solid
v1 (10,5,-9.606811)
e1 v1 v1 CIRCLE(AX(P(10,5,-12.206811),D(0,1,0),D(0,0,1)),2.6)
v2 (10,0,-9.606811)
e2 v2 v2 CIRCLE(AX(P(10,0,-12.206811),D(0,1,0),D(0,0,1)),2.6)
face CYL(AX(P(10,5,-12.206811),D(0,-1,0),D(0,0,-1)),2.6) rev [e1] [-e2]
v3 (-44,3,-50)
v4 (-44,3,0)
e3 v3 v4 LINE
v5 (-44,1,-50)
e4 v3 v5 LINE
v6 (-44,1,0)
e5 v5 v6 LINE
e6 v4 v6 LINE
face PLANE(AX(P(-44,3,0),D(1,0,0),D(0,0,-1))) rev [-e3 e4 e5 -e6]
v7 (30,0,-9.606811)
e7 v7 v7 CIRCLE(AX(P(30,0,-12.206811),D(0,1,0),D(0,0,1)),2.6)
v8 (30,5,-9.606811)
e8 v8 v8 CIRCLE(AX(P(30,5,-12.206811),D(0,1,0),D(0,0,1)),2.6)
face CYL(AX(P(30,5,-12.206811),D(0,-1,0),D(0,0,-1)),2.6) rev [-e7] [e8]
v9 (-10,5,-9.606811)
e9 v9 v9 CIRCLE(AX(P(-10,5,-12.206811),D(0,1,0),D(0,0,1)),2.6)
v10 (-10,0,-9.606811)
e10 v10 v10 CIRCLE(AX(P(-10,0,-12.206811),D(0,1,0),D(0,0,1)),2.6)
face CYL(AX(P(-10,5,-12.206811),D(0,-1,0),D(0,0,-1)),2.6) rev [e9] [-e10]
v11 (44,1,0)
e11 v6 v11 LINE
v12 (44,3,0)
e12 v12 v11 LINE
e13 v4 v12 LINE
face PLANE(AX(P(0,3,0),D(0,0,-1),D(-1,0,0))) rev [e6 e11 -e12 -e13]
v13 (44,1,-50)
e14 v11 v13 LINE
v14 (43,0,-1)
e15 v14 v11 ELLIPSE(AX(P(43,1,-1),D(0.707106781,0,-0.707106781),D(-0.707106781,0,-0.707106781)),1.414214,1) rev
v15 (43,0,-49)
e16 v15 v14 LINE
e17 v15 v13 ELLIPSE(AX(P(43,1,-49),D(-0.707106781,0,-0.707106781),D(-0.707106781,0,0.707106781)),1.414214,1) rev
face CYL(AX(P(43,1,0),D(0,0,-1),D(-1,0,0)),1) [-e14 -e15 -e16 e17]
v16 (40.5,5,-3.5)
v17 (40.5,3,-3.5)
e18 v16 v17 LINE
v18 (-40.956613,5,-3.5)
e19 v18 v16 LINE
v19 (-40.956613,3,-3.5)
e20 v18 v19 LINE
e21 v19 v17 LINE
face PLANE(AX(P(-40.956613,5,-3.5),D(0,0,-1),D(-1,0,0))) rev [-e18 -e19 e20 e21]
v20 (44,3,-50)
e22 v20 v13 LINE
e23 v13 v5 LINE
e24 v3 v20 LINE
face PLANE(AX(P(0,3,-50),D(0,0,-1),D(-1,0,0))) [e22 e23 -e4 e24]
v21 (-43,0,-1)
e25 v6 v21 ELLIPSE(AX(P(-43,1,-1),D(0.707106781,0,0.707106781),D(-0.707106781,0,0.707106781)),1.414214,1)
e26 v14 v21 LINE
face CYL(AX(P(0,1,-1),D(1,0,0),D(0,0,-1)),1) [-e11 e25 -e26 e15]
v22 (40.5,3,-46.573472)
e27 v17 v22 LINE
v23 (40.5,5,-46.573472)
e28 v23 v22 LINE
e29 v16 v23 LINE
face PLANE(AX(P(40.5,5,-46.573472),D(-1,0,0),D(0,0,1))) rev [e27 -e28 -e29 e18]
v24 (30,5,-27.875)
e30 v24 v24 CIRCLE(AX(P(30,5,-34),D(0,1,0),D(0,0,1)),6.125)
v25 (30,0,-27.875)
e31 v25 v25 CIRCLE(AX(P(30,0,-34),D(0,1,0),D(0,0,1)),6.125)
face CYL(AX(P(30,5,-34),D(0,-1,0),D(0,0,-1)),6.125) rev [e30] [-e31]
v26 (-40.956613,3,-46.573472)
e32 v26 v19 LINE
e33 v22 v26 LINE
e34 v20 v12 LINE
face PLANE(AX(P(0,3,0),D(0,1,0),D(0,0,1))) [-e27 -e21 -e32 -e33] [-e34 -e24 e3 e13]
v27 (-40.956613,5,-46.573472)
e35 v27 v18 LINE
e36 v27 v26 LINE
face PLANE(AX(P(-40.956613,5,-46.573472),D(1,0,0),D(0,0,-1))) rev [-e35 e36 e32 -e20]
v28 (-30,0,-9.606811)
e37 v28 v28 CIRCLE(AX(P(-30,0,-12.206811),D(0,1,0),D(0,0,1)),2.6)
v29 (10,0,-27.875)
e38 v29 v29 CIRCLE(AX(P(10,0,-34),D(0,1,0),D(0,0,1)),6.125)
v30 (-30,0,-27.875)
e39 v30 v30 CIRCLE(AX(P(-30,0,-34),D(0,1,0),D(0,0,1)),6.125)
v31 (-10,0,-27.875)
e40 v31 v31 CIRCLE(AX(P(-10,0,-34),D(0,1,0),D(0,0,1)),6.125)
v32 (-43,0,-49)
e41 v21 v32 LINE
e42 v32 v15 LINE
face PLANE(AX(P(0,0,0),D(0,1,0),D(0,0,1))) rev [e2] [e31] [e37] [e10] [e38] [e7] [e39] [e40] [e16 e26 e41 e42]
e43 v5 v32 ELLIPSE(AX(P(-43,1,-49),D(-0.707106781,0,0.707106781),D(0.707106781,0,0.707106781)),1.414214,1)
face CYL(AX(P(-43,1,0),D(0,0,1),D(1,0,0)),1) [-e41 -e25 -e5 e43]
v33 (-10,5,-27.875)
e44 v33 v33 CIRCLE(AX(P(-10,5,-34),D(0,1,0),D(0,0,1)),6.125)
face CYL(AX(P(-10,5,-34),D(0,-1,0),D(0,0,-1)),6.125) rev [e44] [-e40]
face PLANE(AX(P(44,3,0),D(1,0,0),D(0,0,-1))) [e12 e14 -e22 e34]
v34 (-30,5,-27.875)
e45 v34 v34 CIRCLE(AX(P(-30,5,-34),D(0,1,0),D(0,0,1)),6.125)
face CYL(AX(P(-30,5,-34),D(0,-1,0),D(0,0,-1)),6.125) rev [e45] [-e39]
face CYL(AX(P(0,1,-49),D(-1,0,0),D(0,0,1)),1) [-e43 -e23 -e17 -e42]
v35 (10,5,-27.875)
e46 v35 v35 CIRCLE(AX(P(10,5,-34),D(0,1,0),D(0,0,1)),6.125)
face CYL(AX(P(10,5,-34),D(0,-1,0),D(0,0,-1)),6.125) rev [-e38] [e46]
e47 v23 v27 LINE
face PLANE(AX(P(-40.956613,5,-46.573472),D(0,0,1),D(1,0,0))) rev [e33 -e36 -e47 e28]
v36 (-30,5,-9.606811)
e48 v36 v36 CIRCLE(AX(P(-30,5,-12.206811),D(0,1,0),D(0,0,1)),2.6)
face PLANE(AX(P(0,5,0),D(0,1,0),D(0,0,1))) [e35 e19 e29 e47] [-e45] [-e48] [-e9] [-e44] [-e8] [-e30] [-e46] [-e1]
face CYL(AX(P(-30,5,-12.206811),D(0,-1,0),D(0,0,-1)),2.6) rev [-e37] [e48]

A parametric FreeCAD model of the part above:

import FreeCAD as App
import Part
import Sketcher
from FreeCAD import Vector
Q = App.Units.Quantity


def edges_at(feature, points):
    """Names of the edges that pass closest to the given points."""
    edges = feature.Shape.Edges
    near = lambda p: min(range(len(edges)), key=lambda i: edges[i].distToShape(Part.Vertex(*p))[0])
    return sorted({f"Edge{near(p) + 1}" for p in points})

doc = App.newDocument("Part")
body = doc.addObject("PartDesign::Body", "Body")

# Sketch on XZ plane
sketch1 = doc.addObject("Sketcher::SketchObject", "Sketch")
body.addObject(sketch1)
sketch1.AttachmentSupport = (doc.XZ_Plane, [""])
sketch1.MapMode = "FlatFace"
sketch1.addGeometry(Part.LineSegment(Vector(-44, -50, 0), Vector(-44, 0, 0)), False)
sketch1.addGeometry(Part.LineSegment(Vector(-44, 0, 0), Vector(44, 0, 0)), False)
sketch1.addGeometry(Part.LineSegment(Vector(44, 0, 0), Vector(44, -50, 0)), False)
sketch1.addGeometry(Part.LineSegment(Vector(44, -50, 0), Vector(-44, -50, 0)), False)
sketch1.addConstraint(Sketcher.Constraint("Coincident", 0, 2, 1, 1))
sketch1.addConstraint(Sketcher.Constraint("Coincident", 1, 2, 2, 1))
sketch1.addConstraint(Sketcher.Constraint("Coincident", 2, 2, 3, 1))
sketch1.addConstraint(Sketcher.Constraint("Coincident", 3, 2, 0, 1))
sketch1.addConstraint(Sketcher.Constraint("Vertical", 0))
sketch1.addConstraint(Sketcher.Constraint("Horizontal", 1))
sketch1.addConstraint(Sketcher.Constraint("Vertical", 2))
sketch1.addConstraint(Sketcher.Constraint("Horizontal", 3))
sketch1.addConstraint(Sketcher.Constraint("Symmetric", 0, 2, 1, 2, -1, 1))
sketch1.addConstraint(Sketcher.Constraint("DistanceX", 1, 1, 1, 2, Q("88 mm")))
sketch1.addConstraint(Sketcher.Constraint("DistanceY", 0, 1, 0, 2, Q("50 mm")))
pad1 = doc.addObject("PartDesign::Pad", "Pad")
body.addObject(pad1)
pad1.Profile = sketch1
pad1.Length = 3
pad1.Reversed = True

# Sketch on XZ plane
sketch2 = doc.addObject("Sketcher::SketchObject", "Sketch001")
body.addObject(sketch2)
sketch2.AttachmentSupport = (doc.XZ_Plane, [""])
sketch2.MapMode = "FlatFace"
sketch2.AttachmentOffset = App.Placement(Vector(0, 0, -3), App.Rotation())
sketch2.addGeometry(Part.LineSegment(Vector(-41, -47, 0), Vector(-41, -4, 0)), False)
sketch2.addGeometry(Part.LineSegment(Vector(-41, -4, 0), Vector(40, -4, 0)), False)
sketch2.addGeometry(Part.LineSegment(Vector(40, -4, 0), Vector(40, -47, 0)), False)
sketch2.addGeometry(Part.LineSegment(Vector(40, -47, 0), Vector(-41, -47, 0)), False)
sketch2.addConstraint(Sketcher.Constraint("Coincident", 0, 2, 1, 1))
sketch2.addConstraint(Sketcher.Constraint("Coincident", 1, 2, 2, 1))
sketch2.addConstraint(Sketcher.Constraint("Coincident", 2, 2, 3, 1))
sketch2.addConstraint(Sketcher.Constraint("Coincident", 3, 2, 0, 1))
sketch2.addConstraint(Sketcher.Constraint("Vertical", 0))
sketch2.addConstraint(Sketcher.Constraint("Horizontal", 1))
sketch2.addConstraint(Sketcher.Constraint("Vertical", 2))
sketch2.addConstraint(Sketcher.Constraint("Horizontal", 3))
sketch2.addConstraint(Sketcher.Constraint("DistanceY", 0, 2, -1, 1, Q("3.5 mm")))
sketch2.addConstraint(Sketcher.Constraint("DistanceX", -1, 1, 1, 2, Q("40.5 mm")))
sketch2.addConstraint(Sketcher.Constraint("DistanceY", 0, 1, 0, 2, Q("43.073472 mm")))
sketch2.addConstraint(Sketcher.Constraint("DistanceX", 1, 1, 1, 2, Q("81.456613 mm")))
pad2 = doc.addObject("PartDesign::Pad", "Pad001")
body.addObject(pad2)
pad2.Profile = sketch2
pad2.Length = 2
pad2.Reversed = True

# Sketch on XZ plane
sketch3 = doc.addObject("Sketcher::SketchObject", "Sketch002")
body.addObject(sketch3)
sketch3.AttachmentSupport = (doc.XZ_Plane, [""])
sketch3.MapMode = "FlatFace"
sketch3.AttachmentOffset = App.Placement(Vector(0, 0, -3), App.Rotation())
sketch3.addGeometry(Part.Circle(Vector(30, -34, 0), Vector(0, 0, 1), 6.1), False)
sketch3.addGeometry(Part.Circle(Vector(10, -34, 0), Vector(0, 0, 1), 6.1), False)
sketch3.addGeometry(Part.Circle(Vector(-10, -34, 0), Vector(0, 0, 1), 6.1), False)
sketch3.addGeometry(Part.Circle(Vector(-30, -34, 0), Vector(0, 0, 1), 6.1), False)
sketch3.addGeometry(Part.Circle(Vector(30, -12.2, 0), Vector(0, 0, 1), 2.6), False)
sketch3.addGeometry(Part.Circle(Vector(10, -12.2, 0), Vector(0, 0, 1), 2.6), False)
sketch3.addGeometry(Part.Circle(Vector(-10, -12.2, 0), Vector(0, 0, 1), 2.6), False)
sketch3.addGeometry(Part.Circle(Vector(-30, -12.2, 0), Vector(0, 0, 1), 2.6), False)
sketch3.addConstraint(Sketcher.Constraint("Equal", 0, 1))
sketch3.addConstraint(Sketcher.Constraint("Equal", 1, 2))
sketch3.addConstraint(Sketcher.Constraint("Equal", 2, 3))
sketch3.addConstraint(Sketcher.Constraint("Equal", 4, 5))
sketch3.addConstraint(Sketcher.Constraint("Equal", 5, 6))
sketch3.addConstraint(Sketcher.Constraint("Equal", 6, 7))
sketch3.addConstraint(Sketcher.Constraint("Symmetric", 1, 3, 2, 3, -2))
sketch3.addConstraint(Sketcher.Constraint("Symmetric", 0, 3, 3, 3, -2))
sketch3.addConstraint(Sketcher.Constraint("Symmetric", 5, 3, 6, 3, -2))
sketch3.addConstraint(Sketcher.Constraint("Symmetric", 4, 3, 7, 3, -2))
sketch3.addConstraint(Sketcher.Constraint("Horizontal", 0, 3, 1, 3))
sketch3.addConstraint(Sketcher.Constraint("Horizontal", 4, 3, 5, 3))
sketch3.addConstraint(Sketcher.Constraint("Vertical", 0, 3, 4, 3))
sketch3.addConstraint(Sketcher.Constraint("Vertical", 1, 3, 5, 3))
sketch3.addConstraint(Sketcher.Constraint("Diameter", 4, Q("5.2 mm")))
sketch3.addConstraint(Sketcher.Constraint("Diameter", 0, Q("12.25 mm")))
sketch3.addConstraint(Sketcher.Constraint("DistanceX", -1, 1, 0, 3, Q("30 mm")))
sketch3.addConstraint(Sketcher.Constraint("DistanceY", 0, 3, -1, 1, Q("34 mm")))
sketch3.addConstraint(Sketcher.Constraint("DistanceX", -1, 1, 1, 3, Q("10 mm")))
sketch3.addConstraint(Sketcher.Constraint("DistanceY", 4, 3, -1, 1, Q("12.206811 mm")))
pocket1 = doc.addObject("PartDesign::Pocket", "Pocket")
body.addObject(pocket1)
pocket1.Profile = sketch3
pocket1.Type = "ThroughAll"
pocket1.Midplane = True
doc.recompute()

fillet = doc.addObject("PartDesign::Fillet", "Fillet")
body.addObject(fillet)
fillet.Base = (pocket1, edges_at(pocket1, [
    (0, 0, 0),
    (-44, 0, -25),
    (0, 0, -50),
    (44, 0, -25),
]))
fillet.Radius = 1

doc.recompute()
